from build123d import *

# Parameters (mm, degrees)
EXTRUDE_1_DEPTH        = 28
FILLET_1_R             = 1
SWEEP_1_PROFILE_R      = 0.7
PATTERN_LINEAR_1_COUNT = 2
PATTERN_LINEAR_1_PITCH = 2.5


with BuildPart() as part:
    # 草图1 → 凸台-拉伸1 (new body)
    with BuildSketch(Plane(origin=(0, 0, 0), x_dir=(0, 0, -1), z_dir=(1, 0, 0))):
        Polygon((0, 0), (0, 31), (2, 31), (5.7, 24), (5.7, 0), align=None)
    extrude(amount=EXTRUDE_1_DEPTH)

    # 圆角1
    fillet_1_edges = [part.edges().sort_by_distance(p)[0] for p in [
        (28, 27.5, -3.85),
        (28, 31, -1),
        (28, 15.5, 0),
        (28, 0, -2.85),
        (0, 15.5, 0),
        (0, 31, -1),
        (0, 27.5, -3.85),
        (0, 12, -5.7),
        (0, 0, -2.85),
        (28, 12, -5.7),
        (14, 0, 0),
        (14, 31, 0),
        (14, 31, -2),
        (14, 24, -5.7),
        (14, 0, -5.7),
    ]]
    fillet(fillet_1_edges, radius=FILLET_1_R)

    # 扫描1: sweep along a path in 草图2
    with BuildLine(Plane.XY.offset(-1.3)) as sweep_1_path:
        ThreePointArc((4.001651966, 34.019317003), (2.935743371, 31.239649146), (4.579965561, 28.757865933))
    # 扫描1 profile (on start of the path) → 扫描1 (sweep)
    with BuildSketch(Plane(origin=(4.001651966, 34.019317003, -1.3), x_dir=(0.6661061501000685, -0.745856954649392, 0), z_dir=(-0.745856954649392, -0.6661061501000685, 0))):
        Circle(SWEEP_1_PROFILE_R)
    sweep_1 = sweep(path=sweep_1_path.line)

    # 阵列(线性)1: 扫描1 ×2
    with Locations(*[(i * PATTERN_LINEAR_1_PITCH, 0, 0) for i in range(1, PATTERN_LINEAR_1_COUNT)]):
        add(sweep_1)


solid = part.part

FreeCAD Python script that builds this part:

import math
import FreeCAD as App
import Part
import Sketcher


def add_polygon(sketch, points):
    """Adds a closed chain of lines whose ends are joined by coincident constraints."""
    first, n = sketch.GeometryCount, len(points)
    for a, b in zip(points, points[1:] + points[:1]):
        sketch.addGeometry(Part.LineSegment(App.Vector(*a, 0), App.Vector(*b, 0)), False)
    for i in range(n):
        sketch.addConstraint(Sketcher.Constraint("Coincident", first + i, 2, first + (i + 1) % n, 1))

doc = App.newDocument("Part")
body = doc.addObject("PartDesign::Body", "Body")

# Sketch on YZ plane
sketch1 = body.newObject("Sketcher::SketchObject", "Sketch")
sketch1.AttachmentSupport = (doc.getObject("YZ_Plane"), [""])
sketch1.MapMode = "FlatFace"
add_polygon(sketch1, [(31, 0), (0, 0), (0, -5.7), (24, -5.7), (31, -2)])  # lines 0-4
sketch1.addConstraint(Sketcher.Constraint("Horizontal", 0))
sketch1.addConstraint(Sketcher.Constraint("Vertical", 1))
sketch1.addConstraint(Sketcher.Constraint("Horizontal", 2))
sketch1.addConstraint(Sketcher.Constraint("Vertical", 4))
sketch1.addConstraint(Sketcher.Constraint("Coincident", 0, 2, -1, 1))
sketch1.addConstraint(Sketcher.Constraint("DistanceX", 0, 2, 0, 1, 31.0))
sketch1.addConstraint(Sketcher.Constraint("DistanceX", 2, 1, 2, 2, 24.0))
sketch1.addConstraint(Sketcher.Constraint("DistanceY", 4, 1, 4, 2, 2.0))
sketch1.addConstraint(Sketcher.Constraint("DistanceY", 1, 2, 1, 1, 5.7))
pad1 = body.newObject("PartDesign::Pad", "Pad")
pad1.Profile = sketch1
pad1.Length = 28
doc.recompute()

fillet = body.newObject("PartDesign::Fillet", "Fillet")
fillet.Base = (pad1, ["Edge1"])
fillet.UseAllEdges = True
fillet.Radius = 1

# Sketch on an angled plane
sketch2 = body.newObject("Sketcher::SketchObject", "Sketch001")
sketch2.Placement = App.Placement(App.Vector(4.001652, 34.019317, -1.3), App.Rotation(App.Vector(0.66610615, -0.745856955, 0), App.Vector(0, 0, 1), App.Vector(-0.745856955, -0.66610615, 0), "ZXY"))
sketch2.addGeometry(Part.Circle(App.Vector(0, 0, 0), App.Vector(0, 0, 1), 0.7), False)
sketch2.addConstraint(Sketcher.Constraint("Coincident", 0, 3, -1, 1))
sketch2.addConstraint(Sketcher.Constraint("Diameter", 0, 1.4))

# Sketch on XY plane
sketch3 = body.newObject("Sketcher::SketchObject", "Sketch002")
sketch3.AttachmentSupport = (doc.getObject("XY_Plane"), [""])
sketch3.MapMode = "FlatFace"
sketch3.AttachmentOffset = App.Placement(App.Vector(0, 0, -1.3), App.Rotation())
sketch3.addGeometry(Part.ArcOfCircle(Part.Circle(App.Vector(6.166923, 31.594805, 0), App.Vector(0, 0, 1), 3.250639), math.radians(131.767242), math.radians(240.777757)), False)
sketch3.addConstraint(Sketcher.Constraint("Radius", 0, 3.250639))
sketch3.addConstraint(Sketcher.Constraint("DistanceX", -1, 1, 0, 1, 4.001652))
sketch3.addConstraint(Sketcher.Constraint("DistanceX", 0, 1, 0, 3, 2.165271))
sketch3.addConstraint(Sketcher.Constraint("DistanceY", 0, 2, 0, 3, 2.836939))
sketch3.addConstraint(Sketcher.Constraint("DistanceY", -1, 1, 0, 3, 31.594805))
doc.recompute()

additivepipe = body.newObject("PartDesign::AdditivePipe", "AdditivePipe")
additivepipe.Profile = sketch2
additivepipe.Spine = (sketch3, ["Edge1"])
doc.recompute()

linearpattern = body.newObject("PartDesign::LinearPattern", "LinearPattern")
linearpattern.Originals = [additivepipe]
linearpattern.Direction = (doc.getObject("X_Axis"), [""])
linearpattern.Mode = "offset"
linearpattern.Offset = 2.5
linearpattern.Occurrences = 2
body.Tip = linearpattern

doc.recompute()
